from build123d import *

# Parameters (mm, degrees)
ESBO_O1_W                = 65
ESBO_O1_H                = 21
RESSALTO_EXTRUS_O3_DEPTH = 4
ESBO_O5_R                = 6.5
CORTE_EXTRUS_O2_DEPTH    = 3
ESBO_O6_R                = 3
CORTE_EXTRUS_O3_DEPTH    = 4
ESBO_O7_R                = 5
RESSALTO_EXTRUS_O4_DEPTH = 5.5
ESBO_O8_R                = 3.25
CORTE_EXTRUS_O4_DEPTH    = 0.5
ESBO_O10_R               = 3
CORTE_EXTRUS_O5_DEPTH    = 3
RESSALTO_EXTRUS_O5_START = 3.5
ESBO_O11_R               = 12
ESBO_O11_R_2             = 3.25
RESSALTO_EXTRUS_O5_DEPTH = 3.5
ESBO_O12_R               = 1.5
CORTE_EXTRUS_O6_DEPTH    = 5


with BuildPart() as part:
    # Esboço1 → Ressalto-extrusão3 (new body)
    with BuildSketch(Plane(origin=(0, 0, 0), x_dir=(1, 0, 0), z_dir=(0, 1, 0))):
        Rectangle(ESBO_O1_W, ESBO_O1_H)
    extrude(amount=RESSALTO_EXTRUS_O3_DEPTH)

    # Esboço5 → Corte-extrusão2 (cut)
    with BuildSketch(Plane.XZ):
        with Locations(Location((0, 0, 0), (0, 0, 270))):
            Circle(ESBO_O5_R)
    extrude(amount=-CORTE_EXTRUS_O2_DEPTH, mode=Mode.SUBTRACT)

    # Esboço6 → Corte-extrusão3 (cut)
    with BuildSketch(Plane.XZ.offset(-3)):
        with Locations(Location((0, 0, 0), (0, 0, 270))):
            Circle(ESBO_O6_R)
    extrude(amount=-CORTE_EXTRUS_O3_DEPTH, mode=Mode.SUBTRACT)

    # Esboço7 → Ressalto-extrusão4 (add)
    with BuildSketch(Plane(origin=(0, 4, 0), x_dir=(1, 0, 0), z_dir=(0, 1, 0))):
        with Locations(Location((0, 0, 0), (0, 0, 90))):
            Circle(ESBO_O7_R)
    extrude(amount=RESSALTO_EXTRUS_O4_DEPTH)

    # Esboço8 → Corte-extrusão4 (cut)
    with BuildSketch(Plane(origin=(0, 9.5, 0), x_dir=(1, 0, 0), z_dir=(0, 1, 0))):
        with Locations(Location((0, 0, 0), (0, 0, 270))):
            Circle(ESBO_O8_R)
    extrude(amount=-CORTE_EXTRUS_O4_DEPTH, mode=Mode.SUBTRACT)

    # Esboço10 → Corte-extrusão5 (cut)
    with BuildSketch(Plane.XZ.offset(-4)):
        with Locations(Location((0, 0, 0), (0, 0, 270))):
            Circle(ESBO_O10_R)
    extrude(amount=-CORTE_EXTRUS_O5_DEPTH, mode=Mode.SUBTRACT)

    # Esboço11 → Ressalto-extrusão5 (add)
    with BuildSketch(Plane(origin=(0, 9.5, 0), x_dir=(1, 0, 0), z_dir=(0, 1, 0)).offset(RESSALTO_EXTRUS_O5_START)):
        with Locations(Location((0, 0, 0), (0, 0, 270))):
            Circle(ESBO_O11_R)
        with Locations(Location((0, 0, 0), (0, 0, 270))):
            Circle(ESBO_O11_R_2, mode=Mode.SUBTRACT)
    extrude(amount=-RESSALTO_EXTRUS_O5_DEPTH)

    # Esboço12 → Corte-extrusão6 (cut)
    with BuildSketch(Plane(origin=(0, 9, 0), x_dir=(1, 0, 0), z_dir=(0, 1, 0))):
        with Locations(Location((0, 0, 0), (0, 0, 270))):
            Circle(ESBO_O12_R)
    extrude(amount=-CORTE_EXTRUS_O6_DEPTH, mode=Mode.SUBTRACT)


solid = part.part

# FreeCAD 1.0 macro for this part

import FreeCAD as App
import Part
import Sketcher

V = App.Vector

doc = App.newDocument("Part")
body = doc.addObject("PartDesign::Body", "Body")

# Sketch on XZ plane
sketch1 = doc.addObject("Sketcher::SketchObject", "Sketch")
body.addObject(sketch1)
sketch1.AttachmentSupport = (doc.XZ_Plane, [""])
sketch1.MapMode = "FlatFace"
sketch1.addGeometry([
    Part.LineSegment(V(-32, -10, 0), V(-32, 10, 0)),
    Part.LineSegment(V(-32, 10, 0), V(32, 10, 0)),
    Part.LineSegment(V(32, 10, 0), V(32, -10, 0)),
    Part.LineSegment(V(32, -10, 0), V(-32, -10, 0)),
], False)
sketch1.addConstraint([
    Sketcher.Constraint("Coincident", 0, 2, 1, 1),
    Sketcher.Constraint("Coincident", 1, 2, 2, 1),
    Sketcher.Constraint("Coincident", 2, 2, 3, 1),
    Sketcher.Constraint("Coincident", 3, 2, 0, 1),
    Sketcher.Constraint("Vertical", 0),
    Sketcher.Constraint("Horizontal", 1),
    Sketcher.Constraint("Vertical", 2),
    Sketcher.Constraint("Horizontal", 3),
    Sketcher.Constraint("Symmetric", 0, 2, 2, 2, -1, 1),
    Sketcher.Constraint("DistanceX", 1, 1, 1, 2, 65.0),
    Sketcher.Constraint("DistanceY", 0, 1, 0, 2, 21.0),
])
pad1 = doc.addObject("PartDesign::Pad", "Pad")
body.addObject(pad1)
pad1.Profile = sketch1
pad1.Length = 4
pad1.Reversed = True

# Sketch on XZ plane
sketch2 = doc.addObject("Sketcher::SketchObject", "Sketch001")
body.addObject(sketch2)
sketch2.AttachmentSupport = (doc.XZ_Plane, [""])
sketch2.MapMode = "FlatFace"
sketch2.addGeometry(Part.Circle(V(0, 0, 0), V(0, 0, 1), 6), False)
sketch2.addConstraint([
    Sketcher.Constraint("Coincident", 0, 3, -1, 1),
    Sketcher.Constraint("Diameter", 0, 13.0),
])
pocket1 = doc.addObject("PartDesign::Pocket", "Pocket")
body.addObject(pocket1)
pocket1.Profile = sketch2
pocket1.Length = 3

# Sketch on XZ plane
sketch3 = doc.addObject("Sketcher::SketchObject", "Sketch002")
body.addObject(sketch3)
sketch3.AttachmentSupport = (doc.XZ_Plane, [""])
sketch3.MapMode = "FlatFace"
sketch3.AttachmentOffset = App.Placement(V(0, 0, -3), App.Rotation())
sketch3.addGeometry(Part.Circle(V(0, 0, 0), V(0, 0, 1), 3), False)
sketch3.addConstraint([
    Sketcher.Constraint("Coincident", 0, 3, -1, 1),
    Sketcher.Constraint("Diameter", 0, 6.0),
])
pocket2 = doc.addObject("PartDesign::Pocket", "Pocket001")
body.addObject(pocket2)
pocket2.Profile = sketch3
pocket2.Length = 4

# Sketch on XZ plane
sketch4 = doc.addObject("Sketcher::SketchObject", "Sketch003")
body.addObject(sketch4)
sketch4.AttachmentSupport = (doc.XZ_Plane, [""])
sketch4.MapMode = "FlatFace"
sketch4.AttachmentOffset = App.Placement(V(0, 0, -4), App.Rotation())
sketch4.addGeometry(Part.Circle(V(0, 0, 0), V(0, 0, 1), 5), False)
sketch4.addConstraint([
    Sketcher.Constraint("Coincident", 0, 3, -1, 1),
    Sketcher.Constraint("Diameter", 0, 10.0),
])
pad2 = doc.addObject("PartDesign::Pad", "Pad001")
body.addObject(pad2)
pad2.Profile = sketch4
pad2.Length = 5.5
pad2.Reversed = True

# Sketch on XZ plane
sketch5 = doc.addObject("Sketcher::SketchObject", "Sketch004")
body.addObject(sketch5)
sketch5.AttachmentSupport = (doc.XZ_Plane, [""])
sketch5.MapMode = "FlatFace"
sketch5.AttachmentOffset = App.Placement(V(0, 0, -9.5), App.Rotation())
sketch5.addGeometry(Part.Circle(V(0, 0, 0), V(0, 0, 1), 3.2), False)
sketch5.addConstraint([
    Sketcher.Constraint("Coincident", 0, 3, -1, 1),
    Sketcher.Constraint("Diameter", 0, 6.5),
])
pocket3 = doc.addObject("PartDesign::Pocket", "Pocket002")
body.addObject(pocket3)
pocket3.Profile = sketch5
pocket3.Length = 0.5
pocket3.Reversed = True

# Sketch on XZ plane
sketch6 = doc.addObject("Sketcher::SketchObject", "Sketch005")
body.addObject(sketch6)
sketch6.AttachmentSupport = (doc.XZ_Plane, [""])
sketch6.MapMode = "FlatFace"
sketch6.AttachmentOffset = App.Placement(V(0, 0, -4), App.Rotation())
sketch6.addGeometry(Part.Circle(V(0, 0, 0), V(0, 0, 1), 3), False)
sketch6.addConstraint([
    Sketcher.Constraint("Coincident", 0, 3, -1, 1),
    Sketcher.Constraint("Diameter", 0, 6.0),
])
pocket4 = doc.addObject("PartDesign::Pocket", "Pocket003")
body.addObject(pocket4)
pocket4.Profile = sketch6
pocket4.Length = 3

# Sketch on XZ plane
sketch7 = doc.addObject("Sketcher::SketchObject", "Sketch006")
body.addObject(sketch7)
sketch7.AttachmentSupport = (doc.XZ_Plane, [""])
sketch7.MapMode = "FlatFace"
sketch7.AttachmentOffset = App.Placement(V(0, 0, -13), App.Rotation())
sketch7.addGeometry([
    Part.Circle(V(0, 0, 0), V(0, 0, 1), 12),
    Part.Circle(V(0, 0, 0), V(0, 0, 1), 3.2),
], False)
sketch7.addConstraint([
    Sketcher.Constraint("Coincident", 0, 3, -1, 1),
    Sketcher.Constraint("Coincident", 1, 3, -1, 1),
    Sketcher.Constraint("Diameter", 0, 24.0),
    Sketcher.Constraint("Diameter", 1, 6.5),
])
pad3 = doc.addObject("PartDesign::Pad", "Pad002")
body.addObject(pad3)
pad3.Profile = sketch7
pad3.Length = 3.5

# Sketch on XZ plane
sketch8 = doc.addObject("Sketcher::SketchObject", "Sketch007")
body.addObject(sketch8)
sketch8.AttachmentSupport = (doc.XZ_Plane, [""])
sketch8.MapMode = "FlatFace"
sketch8.AttachmentOffset = App.Placement(V(0, 0, -9), App.Rotation())
sketch8.addGeometry(Part.Circle(V(0, 0, 0), V(0, 0, 1), 1.5), False)
sketch8.addConstraint([
    Sketcher.Constraint("Coincident", 0, 3, -1, 1),
    Sketcher.Constraint("Diameter", 0, 3.0),
])
pocket5 = doc.addObject("PartDesign::Pocket", "Pocket004")
body.addObject(pocket5)
pocket5.Profile = sketch8
pocket5.Length = 5
pocket5.Reversed = True

doc.recompute()
